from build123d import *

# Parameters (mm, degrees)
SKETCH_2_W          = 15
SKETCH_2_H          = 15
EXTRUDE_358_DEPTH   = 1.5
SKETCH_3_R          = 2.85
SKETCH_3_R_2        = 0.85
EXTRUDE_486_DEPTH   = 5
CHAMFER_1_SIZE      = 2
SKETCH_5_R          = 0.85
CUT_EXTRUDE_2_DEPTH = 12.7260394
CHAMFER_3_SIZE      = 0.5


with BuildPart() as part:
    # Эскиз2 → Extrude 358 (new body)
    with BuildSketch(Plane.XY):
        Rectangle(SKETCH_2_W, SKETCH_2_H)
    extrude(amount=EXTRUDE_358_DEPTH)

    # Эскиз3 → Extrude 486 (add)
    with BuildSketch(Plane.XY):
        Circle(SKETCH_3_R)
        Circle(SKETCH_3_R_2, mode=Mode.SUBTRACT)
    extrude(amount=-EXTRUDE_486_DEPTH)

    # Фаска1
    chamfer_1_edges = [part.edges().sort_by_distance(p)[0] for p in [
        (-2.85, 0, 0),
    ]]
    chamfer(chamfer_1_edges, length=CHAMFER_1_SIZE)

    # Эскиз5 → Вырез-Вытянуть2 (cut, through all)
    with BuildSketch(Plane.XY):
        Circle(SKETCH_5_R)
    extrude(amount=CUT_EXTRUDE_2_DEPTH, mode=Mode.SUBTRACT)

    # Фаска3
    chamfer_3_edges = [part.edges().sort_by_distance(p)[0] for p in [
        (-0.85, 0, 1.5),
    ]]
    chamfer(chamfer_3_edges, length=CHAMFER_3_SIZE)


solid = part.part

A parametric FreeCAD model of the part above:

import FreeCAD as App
import Part
import Sketcher
from FreeCAD import Vector
Q = App.Units.Quantity


def edges_at(feature, points):
    """Names of the edges that pass closest to the given points."""
    edges = feature.Shape.Edges
    near = lambda p: min(range(len(edges)), key=lambda i: edges[i].distToShape(Part.Vertex(*p))[0])
    return sorted({f"Edge{near(p) + 1}" for p in points})

doc = App.newDocument("Part")
body = doc.addObject("PartDesign::Body", "Body")

# Sketch on XY plane
sketch1 = doc.addObject("Sketcher::SketchObject", "Sketch")
body.addObject(sketch1)
sketch1.AttachmentSupport = (doc.XY_Plane, [""])
sketch1.MapMode = "FlatFace"
sketch1.addGeometry(Part.LineSegment(Vector(-8, 8, 0), Vector(-8, -8, 0)), False)
sketch1.addGeometry(Part.LineSegment(Vector(-8, -8, 0), Vector(8, -8, 0)), False)
sketch1.addGeometry(Part.LineSegment(Vector(8, -8, 0), Vector(8, 8, 0)), False)
sketch1.addGeometry(Part.LineSegment(Vector(8, 8, 0), Vector(-8, 8, 0)), False)
sketch1.addConstraint(Sketcher.Constraint("Coincident", 0, 2, 1, 1))
sketch1.addConstraint(Sketcher.Constraint("Coincident", 1, 2, 2, 1))
sketch1.addConstraint(Sketcher.Constraint("Coincident", 2, 2, 3, 1))
sketch1.addConstraint(Sketcher.Constraint("Coincident", 3, 2, 0, 1))
sketch1.addConstraint(Sketcher.Constraint("Vertical", 0))
sketch1.addConstraint(Sketcher.Constraint("Horizontal", 1))
sketch1.addConstraint(Sketcher.Constraint("Vertical", 2))
sketch1.addConstraint(Sketcher.Constraint("Horizontal", 3))
sketch1.addConstraint(Sketcher.Constraint("Symmetric", 0, 2, 2, 2, -1, 1))
sketch1.addConstraint(Sketcher.Constraint("Equal", 3, 0))
sketch1.addConstraint(Sketcher.Constraint("DistanceX", 1, 1, 1, 2, Q("15 mm")))
pad1 = doc.addObject("PartDesign::Pad", "Pad")
body.addObject(pad1)
pad1.Profile = sketch1
pad1.Length = 1.5

# Sketch on XY plane
sketch2 = doc.addObject("Sketcher::SketchObject", "Sketch001")
body.addObject(sketch2)
sketch2.AttachmentSupport = (doc.XY_Plane, [""])
sketch2.MapMode = "FlatFace"
sketch2.addGeometry(Part.Circle(Vector(0, 0, 0), Vector(0, 0, 1), 2.9), False)
sketch2.addGeometry(Part.Circle(Vector(0, 0, 0), Vector(0, 0, 1), 0.8), False)
sketch2.addConstraint(Sketcher.Constraint("Coincident", 0, 3, -1, 1))
sketch2.addConstraint(Sketcher.Constraint("Coincident", 1, 3, -1, 1))
sketch2.addConstraint(Sketcher.Constraint("Diameter", 0, Q("5.7 mm")))
sketch2.addConstraint(Sketcher.Constraint("Diameter", 1, Q("1.7 mm")))
pad2 = doc.addObject("PartDesign::Pad", "Pad001")
body.addObject(pad2)
pad2.Profile = sketch2
pad2.Length = 5
pad2.Reversed = True
doc.recompute()

chamfer = doc.addObject("PartDesign::Chamfer", "Chamfer")
body.addObject(chamfer)
chamfer.Base = (pad2, edges_at(pad2, [(-2.85, 0, 0)]))
chamfer.Size = 2

# Sketch on XY plane
sketch3 = doc.addObject("Sketcher::SketchObject", "Sketch002")
body.addObject(sketch3)
sketch3.AttachmentSupport = (doc.XY_Plane, [""])
sketch3.MapMode = "FlatFace"
sketch3.addGeometry(Part.Circle(Vector(0, 0, 0), Vector(0, 0, 1), 0.8), False)
sketch3.addConstraint(Sketcher.Constraint("Coincident", 0, 3, -1, 1))
sketch3.addConstraint(Sketcher.Constraint("Diameter", 0, Q("1.7 mm")))
pocket1 = doc.addObject("PartDesign::Pocket", "Pocket")
body.addObject(pocket1)
pocket1.Profile = sketch3
pocket1.Type = "ThroughAll"
pocket1.Reversed = True
doc.recompute()

chamfer2 = doc.addObject("PartDesign::Chamfer", "Chamfer001")
body.addObject(chamfer2)
chamfer2.Base = (pocket1, edges_at(pocket1, [(-0.85, 0, 1.5)]))
chamfer2.Size = 0.5

doc.recompute()
